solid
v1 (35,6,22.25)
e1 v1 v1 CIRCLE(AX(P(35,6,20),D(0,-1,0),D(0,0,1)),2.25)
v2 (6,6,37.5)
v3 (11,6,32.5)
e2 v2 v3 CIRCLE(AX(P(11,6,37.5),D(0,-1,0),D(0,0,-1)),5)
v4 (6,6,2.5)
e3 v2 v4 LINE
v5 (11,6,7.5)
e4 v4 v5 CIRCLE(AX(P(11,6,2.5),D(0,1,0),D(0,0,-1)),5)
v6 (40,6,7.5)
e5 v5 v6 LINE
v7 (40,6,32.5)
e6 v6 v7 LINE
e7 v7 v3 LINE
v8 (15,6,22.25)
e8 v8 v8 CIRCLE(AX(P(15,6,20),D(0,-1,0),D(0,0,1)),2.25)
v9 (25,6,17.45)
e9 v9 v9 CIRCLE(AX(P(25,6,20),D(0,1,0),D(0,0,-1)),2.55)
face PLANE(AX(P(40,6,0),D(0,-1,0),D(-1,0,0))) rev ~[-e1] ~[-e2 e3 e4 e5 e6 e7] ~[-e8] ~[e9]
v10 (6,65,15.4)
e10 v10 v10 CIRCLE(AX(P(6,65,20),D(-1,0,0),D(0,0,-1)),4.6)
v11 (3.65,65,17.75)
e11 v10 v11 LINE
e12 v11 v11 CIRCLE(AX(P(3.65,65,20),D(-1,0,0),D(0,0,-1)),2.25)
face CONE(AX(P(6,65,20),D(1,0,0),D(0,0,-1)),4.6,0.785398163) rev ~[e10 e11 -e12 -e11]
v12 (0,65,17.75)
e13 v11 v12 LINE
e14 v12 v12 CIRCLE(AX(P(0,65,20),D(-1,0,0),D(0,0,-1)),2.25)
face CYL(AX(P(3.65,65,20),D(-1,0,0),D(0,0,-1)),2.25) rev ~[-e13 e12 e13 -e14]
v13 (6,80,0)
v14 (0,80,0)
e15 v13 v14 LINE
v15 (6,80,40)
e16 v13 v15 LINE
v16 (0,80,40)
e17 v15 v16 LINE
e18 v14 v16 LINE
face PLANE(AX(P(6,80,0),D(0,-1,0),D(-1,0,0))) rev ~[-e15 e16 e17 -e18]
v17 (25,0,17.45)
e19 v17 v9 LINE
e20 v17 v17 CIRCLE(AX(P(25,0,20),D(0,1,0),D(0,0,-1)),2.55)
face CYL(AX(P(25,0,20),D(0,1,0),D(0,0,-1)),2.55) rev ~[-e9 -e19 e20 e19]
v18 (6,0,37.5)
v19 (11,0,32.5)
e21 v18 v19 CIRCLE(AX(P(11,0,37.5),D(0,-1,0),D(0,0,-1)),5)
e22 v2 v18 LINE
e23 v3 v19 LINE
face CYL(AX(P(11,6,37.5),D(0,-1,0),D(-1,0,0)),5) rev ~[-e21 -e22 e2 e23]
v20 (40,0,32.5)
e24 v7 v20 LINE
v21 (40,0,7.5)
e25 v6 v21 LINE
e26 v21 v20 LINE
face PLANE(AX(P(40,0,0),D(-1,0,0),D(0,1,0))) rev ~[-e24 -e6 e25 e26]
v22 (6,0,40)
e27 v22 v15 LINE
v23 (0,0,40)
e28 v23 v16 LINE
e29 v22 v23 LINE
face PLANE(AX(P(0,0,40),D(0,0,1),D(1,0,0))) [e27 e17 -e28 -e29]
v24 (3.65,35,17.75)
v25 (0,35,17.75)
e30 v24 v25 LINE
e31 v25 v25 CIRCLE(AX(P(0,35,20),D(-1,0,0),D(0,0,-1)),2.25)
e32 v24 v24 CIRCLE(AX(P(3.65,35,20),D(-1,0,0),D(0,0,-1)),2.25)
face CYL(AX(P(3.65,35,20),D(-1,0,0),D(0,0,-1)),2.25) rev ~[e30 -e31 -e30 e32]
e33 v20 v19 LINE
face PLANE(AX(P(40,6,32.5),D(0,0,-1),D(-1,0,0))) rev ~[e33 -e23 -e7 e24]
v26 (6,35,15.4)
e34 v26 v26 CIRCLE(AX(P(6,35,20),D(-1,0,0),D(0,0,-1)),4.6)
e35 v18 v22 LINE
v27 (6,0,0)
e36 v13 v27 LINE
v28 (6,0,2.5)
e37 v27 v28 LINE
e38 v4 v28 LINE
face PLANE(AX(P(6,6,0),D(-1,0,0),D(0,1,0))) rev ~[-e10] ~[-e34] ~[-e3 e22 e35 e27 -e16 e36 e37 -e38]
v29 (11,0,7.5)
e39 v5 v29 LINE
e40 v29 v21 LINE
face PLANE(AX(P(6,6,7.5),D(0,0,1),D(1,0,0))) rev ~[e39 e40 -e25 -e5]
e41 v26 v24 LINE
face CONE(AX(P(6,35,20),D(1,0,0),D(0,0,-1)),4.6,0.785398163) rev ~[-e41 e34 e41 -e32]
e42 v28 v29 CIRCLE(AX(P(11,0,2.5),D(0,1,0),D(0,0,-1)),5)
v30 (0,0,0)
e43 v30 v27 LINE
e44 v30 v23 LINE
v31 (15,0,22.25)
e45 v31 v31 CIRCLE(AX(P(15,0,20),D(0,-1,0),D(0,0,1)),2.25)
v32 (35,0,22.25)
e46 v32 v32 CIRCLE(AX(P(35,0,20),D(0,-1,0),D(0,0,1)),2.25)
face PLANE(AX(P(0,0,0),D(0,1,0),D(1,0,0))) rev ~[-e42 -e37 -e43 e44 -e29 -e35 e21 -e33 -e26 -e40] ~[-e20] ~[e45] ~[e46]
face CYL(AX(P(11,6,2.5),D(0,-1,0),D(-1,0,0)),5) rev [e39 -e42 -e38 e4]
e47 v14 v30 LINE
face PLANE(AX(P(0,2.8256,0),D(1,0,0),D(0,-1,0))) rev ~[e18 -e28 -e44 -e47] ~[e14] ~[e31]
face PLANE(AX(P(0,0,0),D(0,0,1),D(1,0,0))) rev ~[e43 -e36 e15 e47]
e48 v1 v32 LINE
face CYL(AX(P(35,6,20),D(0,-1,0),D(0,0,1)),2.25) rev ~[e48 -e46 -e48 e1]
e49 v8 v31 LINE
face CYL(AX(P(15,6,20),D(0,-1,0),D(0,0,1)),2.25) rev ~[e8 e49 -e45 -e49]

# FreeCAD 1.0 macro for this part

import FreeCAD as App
import Part
import Sketcher
from FreeCAD import Vector


def edges_at(feature, points):
    """Names of the edges that pass closest to the given points."""
    edges = feature.Shape.Edges
    near = lambda p: min(range(len(edges)), key=lambda i: edges[i].distToShape(Part.Vertex(*p))[0])
    return sorted({f"Edge{near(p) + 1}" for p in points})


def add_polygon(sketch, points):
    """Adds a closed chain of lines whose ends are joined by coincident constraints."""
    first, n = sketch.GeometryCount, len(points)
    for a, b in zip(points, points[1:] + points[:1]):
        sketch.addGeometry(Part.LineSegment(App.Vector(*a, 0), App.Vector(*b, 0)), False)
    for i in range(n):
        sketch.addConstraint(Sketcher.Constraint("Coincident", first + i, 2, first + (i + 1) % n, 1))

doc = App.newDocument("Part")
body = doc.addObject("PartDesign::Body", "Body")

# Sketch on XY plane
sketch1 = body.newObject("Sketcher::SketchObject", "Sketch")
sketch1.AttachmentSupport = (doc.getObject("XY_Plane"), [""])
sketch1.MapMode = "FlatFace"
add_polygon(sketch1, [(0, 80), (0, 0), (40, 0), (40, 6), (6, 6), (6, 80)])  # lines 0-5
sketch1.addConstraint([
    Sketcher.Constraint("Vertical", 0),
    Sketcher.Constraint("Horizontal", 1),
    Sketcher.Constraint("Vertical", 2),
    Sketcher.Constraint("Horizontal", 3),
    Sketcher.Constraint("Vertical", 4),
    Sketcher.Constraint("Horizontal", 5),
    Sketcher.Constraint("Coincident", 0, 2, -1, 1),
    Sketcher.Constraint("Equal", 5, 2),
    Sketcher.Constraint("DistanceX", 1, 1, 1, 2, 40.0),
    Sketcher.Constraint("DistanceX", 5, 2, 5, 1, 6.0),
    Sketcher.Constraint("DistanceY", 0, 2, 0, 1, 80.0),
])
pad1 = body.newObject("PartDesign::Pad", "Pad")
pad1.Profile = sketch1
pad1.Length = 40

# Sketch on XZ plane
sketch2 = body.newObject("Sketcher::SketchObject", "Sketch001")
sketch2.AttachmentSupport = (doc.getObject("XZ_Plane"), [""])
sketch2.MapMode = "FlatFace"
sketch2.AttachmentOffset = App.Placement(Vector(0, 0, -6), App.Rotation())
add_polygon(sketch2, [(40, 8), (40, 0), (6, 0), (6, 8)])  # lines 0-3
add_polygon(sketch2, [(40, 40), (40, 32), (6, 32), (6, 40)])  # lines 4-7
sketch2.addConstraint([
    Sketcher.Constraint("Vertical", 0),
    Sketcher.Constraint("Horizontal", 1),
    Sketcher.Constraint("Vertical", 2),
    Sketcher.Constraint("Horizontal", 3),
    Sketcher.Constraint("Vertical", 4),
    Sketcher.Constraint("Horizontal", 5),
    Sketcher.Constraint("Vertical", 6),
    Sketcher.Constraint("Horizontal", 7),
    Sketcher.Constraint("PointOnObject", 0, 2, -1),
    Sketcher.Constraint("Vertical", 3, 2, 4, 2),
    Sketcher.Constraint("Vertical", 2, 2, 5, 2),
    Sketcher.Constraint("Equal", 2, 4),
    Sketcher.Constraint("DistanceY", 3, 2, 4, 2, 25.0),
    Sketcher.Constraint("DistanceX", 1, 2, 1, 1, 34.0),
    Sketcher.Constraint("DistanceY", 0, 2, 0, 1, 7.5),
    Sketcher.Constraint("DistanceX", -1, 1, 0, 2, 40.0),
])
pocket1 = body.newObject("PartDesign::Pocket", "Pocket")
pocket1.Profile = sketch2
pocket1.Type = "ThroughAll"
pocket1.Reversed = True

# Sketch on YZ plane
sketch3 = body.newObject("Sketcher::SketchObject", "Sketch002")
sketch3.AttachmentSupport = (doc.getObject("YZ_Plane"), [""])
sketch3.MapMode = "FlatFace"
sketch3.addGeometry([
    Part.Circle(Vector(65, 20, 0), Vector(0, 0, 1), 2),
    Part.Circle(Vector(35, 20, 0), Vector(0, 0, 1), 2),
], False)
sketch3.addConstraint([
    Sketcher.Constraint("Equal", 0, 1),
    Sketcher.Constraint("Horizontal", 0, 3, 1, 3),
    Sketcher.Constraint("Diameter", 0, 4.0),
    Sketcher.Constraint("DistanceX", -1, 1, 0, 3, 65.0),
    Sketcher.Constraint("DistanceY", -1, 1, 0, 3, 20.0),
    Sketcher.Constraint("DistanceX", -1, 1, 1, 3, 35.0),
])
doc.recompute()
hole = body.newObject("PartDesign::Hole", "Hole")
hole.Profile = sketch3
hole.ThreadType = "None"
hole.Diameter = 4
hole.DepthType = "ThroughAll"
hole.Reversed = True

# Sketch on XZ plane
sketch4 = body.newObject("Sketcher::SketchObject", "Sketch003")
sketch4.AttachmentSupport = (doc.getObject("XZ_Plane"), [""])
sketch4.MapMode = "FlatFace"
sketch4.AttachmentOffset = App.Placement(Vector(0, 0, -6), App.Rotation())
sketch4.addGeometry([
    Part.Circle(Vector(35, 20, 0), Vector(0, 0, 1), 2.2),
    Part.Circle(Vector(15, 20, 0), Vector(0, 0, 1), 2.2),
], False)
sketch4.addConstraint([
    Sketcher.Constraint("Equal", 0, 1),
    Sketcher.Constraint("Horizontal", 0, 3, 1, 3),
    Sketcher.Constraint("Diameter", 0, 4.5),
    Sketcher.Constraint("DistanceX", -1, 1, 0, 3, 35.0),
    Sketcher.Constraint("DistanceY", -1, 1, 0, 3, 20.0),
    Sketcher.Constraint("DistanceX", -1, 1, 1, 3, 15.0),
])
doc.recompute()
hole2 = body.newObject("PartDesign::Hole", "Hole001")
hole2.Profile = sketch4
hole2.ThreadType = "None"
hole2.Diameter = 4.5
hole2.DepthType = "ThroughAll"
hole2.Reversed = True

# Sketch on XZ plane
sketch5 = body.newObject("Sketcher::SketchObject", "Sketch004")
sketch5.AttachmentSupport = (doc.getObject("XZ_Plane"), [""])
sketch5.MapMode = "FlatFace"
sketch5.addGeometry(Part.Circle(Vector(25, 20, 0), Vector(0, 0, 1), 2.5), False)
sketch5.addConstraint([
    Sketcher.Constraint("Diameter", 0, 5.1),
    Sketcher.Constraint("DistanceX", -1, 1, 0, 3, 25.0),
    Sketcher.Constraint("DistanceY", -1, 1, 0, 3, 20.0),
])
doc.recompute()
hole3 = body.newObject("PartDesign::Hole", "Hole002")
hole3.Profile = sketch5
hole3.ThreadType = "None"
hole3.Diameter = 5.1
hole3.DepthType = "ThroughAll"
doc.recompute()

fillet = body.newObject("PartDesign::Fillet", "Fillet")
fillet.Base = (hole3, edges_at(hole3, [(6, 3, 7.5), (6, 3, 32.5)]))
fillet.Radius = 5

# Sketch on YZ plane
sketch6 = body.newObject("Sketcher::SketchObject", "Sketch005")
sketch6.AttachmentSupport = (doc.getObject("YZ_Plane"), [""])
sketch6.MapMode = "FlatFace"
sketch6.AttachmentOffset = App.Placement(Vector(0, 0, 6), App.Rotation())
sketch6.addGeometry([
    Part.Circle(Vector(65, 20, 0), Vector(0, 0, 1), 2.2),
    Part.Circle(Vector(35, 20, 0), Vector(0, 0, 1), 2.2),
], False)
sketch6.addConstraint([
    Sketcher.Constraint("Equal", 0, 1),
    Sketcher.Constraint("Horizontal", 0, 3, 1, 3),
    Sketcher.Constraint("Diameter", 0, 4.5),
    Sketcher.Constraint("DistanceX", -1, 1, 0, 3, 65.0),
    Sketcher.Constraint("DistanceY", -1, 1, 0, 3, 20.0),
    Sketcher.Constraint("DistanceX", -1, 1, 1, 3, 35.0),
])
doc.recompute()
hole4 = body.newObject("PartDesign::Hole", "Hole003")
hole4.Profile = sketch6
hole4.ThreadType = "None"
hole4.Diameter = 4.5
hole4.DepthType = "ThroughAll"
hole4.HoleCutType = "Countersink"
hole4.HoleCutDiameter = 9.2
hole4.HoleCutCountersinkAngle = 90

doc.recompute()
